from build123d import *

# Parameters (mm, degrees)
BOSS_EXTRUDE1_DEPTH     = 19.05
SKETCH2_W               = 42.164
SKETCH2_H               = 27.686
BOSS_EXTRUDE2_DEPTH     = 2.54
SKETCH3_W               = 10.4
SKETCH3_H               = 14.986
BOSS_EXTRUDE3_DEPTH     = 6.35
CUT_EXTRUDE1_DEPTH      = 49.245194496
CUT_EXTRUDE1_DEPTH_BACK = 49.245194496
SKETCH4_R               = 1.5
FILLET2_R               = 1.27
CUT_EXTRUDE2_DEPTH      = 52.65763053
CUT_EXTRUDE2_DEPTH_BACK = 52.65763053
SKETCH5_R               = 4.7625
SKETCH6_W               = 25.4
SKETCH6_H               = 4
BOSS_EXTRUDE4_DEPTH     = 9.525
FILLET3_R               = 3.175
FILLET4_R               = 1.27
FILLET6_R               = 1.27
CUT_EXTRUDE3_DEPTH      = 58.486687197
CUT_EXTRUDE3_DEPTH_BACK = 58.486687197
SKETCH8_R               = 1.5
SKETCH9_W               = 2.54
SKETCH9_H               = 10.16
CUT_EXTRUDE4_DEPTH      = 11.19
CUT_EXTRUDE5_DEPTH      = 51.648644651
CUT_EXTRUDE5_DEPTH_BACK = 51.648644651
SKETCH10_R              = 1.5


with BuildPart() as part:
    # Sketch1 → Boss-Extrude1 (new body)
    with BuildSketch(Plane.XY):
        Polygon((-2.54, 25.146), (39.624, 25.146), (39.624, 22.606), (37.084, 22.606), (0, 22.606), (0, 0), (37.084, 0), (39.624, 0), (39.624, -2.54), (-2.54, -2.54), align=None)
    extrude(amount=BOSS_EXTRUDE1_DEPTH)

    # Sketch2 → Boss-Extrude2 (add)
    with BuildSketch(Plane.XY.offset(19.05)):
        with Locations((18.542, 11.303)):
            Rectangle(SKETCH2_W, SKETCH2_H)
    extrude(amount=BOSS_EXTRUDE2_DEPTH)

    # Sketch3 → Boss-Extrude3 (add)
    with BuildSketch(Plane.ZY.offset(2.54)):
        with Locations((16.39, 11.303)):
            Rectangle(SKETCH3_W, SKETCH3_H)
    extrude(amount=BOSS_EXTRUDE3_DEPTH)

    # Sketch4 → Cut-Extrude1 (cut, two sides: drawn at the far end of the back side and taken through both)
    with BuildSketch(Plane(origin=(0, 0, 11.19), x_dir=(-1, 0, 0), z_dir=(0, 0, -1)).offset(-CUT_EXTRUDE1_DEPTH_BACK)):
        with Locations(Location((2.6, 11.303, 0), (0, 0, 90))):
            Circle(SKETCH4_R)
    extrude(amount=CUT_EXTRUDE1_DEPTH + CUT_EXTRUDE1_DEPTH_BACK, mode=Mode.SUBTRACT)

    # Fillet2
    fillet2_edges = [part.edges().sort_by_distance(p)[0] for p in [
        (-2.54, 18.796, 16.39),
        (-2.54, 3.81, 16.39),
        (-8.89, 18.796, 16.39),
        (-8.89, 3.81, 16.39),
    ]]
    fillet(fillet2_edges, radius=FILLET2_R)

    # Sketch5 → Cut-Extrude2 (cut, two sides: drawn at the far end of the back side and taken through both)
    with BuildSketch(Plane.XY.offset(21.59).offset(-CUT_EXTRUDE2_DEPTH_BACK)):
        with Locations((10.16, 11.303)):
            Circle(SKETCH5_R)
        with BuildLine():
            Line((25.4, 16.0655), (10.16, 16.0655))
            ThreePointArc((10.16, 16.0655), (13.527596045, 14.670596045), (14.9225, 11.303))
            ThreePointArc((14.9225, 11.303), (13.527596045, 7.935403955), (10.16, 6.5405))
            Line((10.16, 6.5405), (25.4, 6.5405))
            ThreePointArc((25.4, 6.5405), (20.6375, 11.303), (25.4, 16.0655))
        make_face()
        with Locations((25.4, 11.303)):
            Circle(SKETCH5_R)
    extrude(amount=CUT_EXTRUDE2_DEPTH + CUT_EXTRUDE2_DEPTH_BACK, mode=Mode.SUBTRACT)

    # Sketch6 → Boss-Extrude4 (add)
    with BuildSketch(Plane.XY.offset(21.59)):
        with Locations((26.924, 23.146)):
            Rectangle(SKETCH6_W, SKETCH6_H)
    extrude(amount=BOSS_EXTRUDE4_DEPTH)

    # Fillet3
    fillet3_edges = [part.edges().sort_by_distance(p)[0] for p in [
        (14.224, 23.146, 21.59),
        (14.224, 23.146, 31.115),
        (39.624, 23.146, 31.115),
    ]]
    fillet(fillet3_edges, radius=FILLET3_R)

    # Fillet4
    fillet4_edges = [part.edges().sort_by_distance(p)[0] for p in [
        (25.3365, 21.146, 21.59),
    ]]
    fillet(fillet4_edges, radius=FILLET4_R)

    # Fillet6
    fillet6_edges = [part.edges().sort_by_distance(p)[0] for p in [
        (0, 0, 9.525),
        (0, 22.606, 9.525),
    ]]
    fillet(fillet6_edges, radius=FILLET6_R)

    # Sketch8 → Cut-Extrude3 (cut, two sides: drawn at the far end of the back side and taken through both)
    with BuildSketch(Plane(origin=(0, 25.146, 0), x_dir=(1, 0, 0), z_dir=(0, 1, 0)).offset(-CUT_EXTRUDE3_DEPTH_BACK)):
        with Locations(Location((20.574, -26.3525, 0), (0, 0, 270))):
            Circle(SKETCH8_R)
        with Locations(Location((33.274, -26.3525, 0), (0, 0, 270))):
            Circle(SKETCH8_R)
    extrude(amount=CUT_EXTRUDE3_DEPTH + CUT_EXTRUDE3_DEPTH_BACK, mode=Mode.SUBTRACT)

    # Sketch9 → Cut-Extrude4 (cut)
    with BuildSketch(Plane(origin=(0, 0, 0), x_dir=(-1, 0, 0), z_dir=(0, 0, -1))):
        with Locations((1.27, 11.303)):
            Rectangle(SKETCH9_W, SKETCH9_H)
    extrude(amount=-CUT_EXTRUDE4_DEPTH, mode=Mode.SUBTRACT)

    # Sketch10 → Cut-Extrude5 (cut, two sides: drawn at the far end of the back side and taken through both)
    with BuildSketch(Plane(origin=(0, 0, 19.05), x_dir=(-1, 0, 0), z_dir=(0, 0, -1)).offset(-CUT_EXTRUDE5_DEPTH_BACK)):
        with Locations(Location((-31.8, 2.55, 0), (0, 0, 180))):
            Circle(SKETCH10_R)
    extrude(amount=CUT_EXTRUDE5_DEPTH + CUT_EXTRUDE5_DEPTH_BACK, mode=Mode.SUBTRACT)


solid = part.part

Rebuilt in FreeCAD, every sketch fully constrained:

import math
import FreeCAD as App
import Part
import Sketcher
Q = App.Units.Quantity


def edges_at(feature, points):
    """Names of the edges that pass closest to the given points."""
    edges = feature.Shape.Edges
    near = lambda p: min(range(len(edges)), key=lambda i: edges[i].distToShape(Part.Vertex(*p))[0])
    return sorted({f"Edge{near(p) + 1}" for p in points})

doc = App.newDocument("Part")
params = doc.addObject("Spreadsheet::Sheet", "Params")
for row, (alias, value) in enumerate([
    ("sketch1_height", "0.1 in"),
    ("sketch1_width", "1.66 in"),
    ("sketch1_width2", "1.56 in"),
    ("sketch1_height2", "1.09 in"),
    ("pad1_length", "0.75 in"),
    ("sketch2_width", "1.66 in"),
    ("sketch2_height", "1.09 in"),
    ("pad2_length", "0.1 in"),
    ("sketch3_width", "0.59 in"),
    ("pad3_length", "0.25 in"),
    ("fillet_radius", "0.05 in"),
    ("sketch5_width", "0.6 in"),
    ("sketch5_radius", "0.1875 in"),
    ("sketch6_width", "1 in"),
    ("pad4_length", "0.375 in"),
    ("fillet2_radius", "0.125 in"),
    ("fillet3_radius", "0.05 in"),
    ("fillet4_radius", "0.05 in"),
    ("sketch8_width", "0.1 in"),
    ("sketch8_height", "0.4 in"),
    ("pocket4_length", "11.19 mm"),
], start=1):
    params.set(f"A{row}", alias)
    params.set(f"B{row}", "=" + value)
    params.setAlias(f"B{row}", alias)

body = doc.addObject("PartDesign::Body", "Body")

# Sketch on XY plane
sketch1 = body.newObject("Sketcher::SketchObject", "Sketch")
sketch1.AttachmentSupport = (doc.getObject("XY_Plane"), [""])
sketch1.MapMode = "FlatFace"
sketch1.addGeometry([
    Part.LineSegment(App.Vector(39.6, 25.1, 0), App.Vector(-2.5, 25.1, 0)),  # 0
    Part.LineSegment(App.Vector(-2.5, 25.1, 0), App.Vector(-2.5, -2.5, 0)),  # 1
    Part.LineSegment(App.Vector(-2.5, -2.5, 0), App.Vector(39.6, -2.5, 0)),  # 2
    Part.LineSegment(App.Vector(39.6, -2.5, 0), App.Vector(39.6, 0, 0)),  # 3
    Part.LineSegment(App.Vector(39.6, 0, 0), App.Vector(0, 0, 0)),  # 4
    Part.LineSegment(App.Vector(0, 0, 0), App.Vector(0, 22.6, 0)),  # 5
    Part.LineSegment(App.Vector(0, 22.6, 0), App.Vector(39.6, 22.6, 0)),  # 6
    Part.LineSegment(App.Vector(39.6, 22.6, 0), App.Vector(39.6, 25.1, 0)),  # 7
], False)
sketch1.addConstraint([
    Sketcher.Constraint("Coincident", 0, 2, 1, 1),
    Sketcher.Constraint("Coincident", 1, 2, 2, 1),
    Sketcher.Constraint("Coincident", 2, 2, 3, 1),
    Sketcher.Constraint("Coincident", 3, 2, 4, 1),
    Sketcher.Constraint("Coincident", 4, 2, 5, 1),
    Sketcher.Constraint("Coincident", 5, 2, 6, 1),
    Sketcher.Constraint("Coincident", 6, 2, 7, 1),
    Sketcher.Constraint("Coincident", 7, 2, 0, 1),
    Sketcher.Constraint("Horizontal", 0),
    Sketcher.Constraint("Vertical", 1),
    Sketcher.Constraint("Horizontal", 2),
    Sketcher.Constraint("Vertical", 3),
    Sketcher.Constraint("Horizontal", 4),
    Sketcher.Constraint("Vertical", 5),
    Sketcher.Constraint("Horizontal", 6),
    Sketcher.Constraint("Vertical", 7),
    Sketcher.Constraint("Coincident", 4, 2, -1, 1),
    Sketcher.Constraint("Vertical", 3, 2, 6, 2),
    Sketcher.Constraint("Equal", 3, 7),
    Sketcher.Constraint("DistanceY", 3, 1, 3, 2, Q("0.1 in")),
    Sketcher.Constraint("DistanceX", 0, 2, 0, 1, Q("1.66 in")),
    Sketcher.Constraint("DistanceX", 4, 2, 4, 1, Q("1.56 in")),
    Sketcher.Constraint("DistanceY", 1, 2, 1, 1, Q("1.09 in")),
])
sketch1.setExpression("Constraints[19]", "Params.sketch1_height")
sketch1.setExpression("Constraints[20]", "Params.sketch1_width")
sketch1.setExpression("Constraints[21]", "Params.sketch1_width2")
sketch1.setExpression("Constraints[22]", "Params.sketch1_height2")
pad1 = body.newObject("PartDesign::Pad", "Pad")
pad1.Profile = sketch1
pad1.setExpression("Length", "Params.pad1_length")

# Sketch on XY plane
sketch2 = body.newObject("Sketcher::SketchObject", "Sketch001")
sketch2.AttachmentSupport = (doc.getObject("XY_Plane"), [""])
sketch2.MapMode = "FlatFace"
sketch2.AttachmentOffset = App.Placement(App.Vector(0, 0, 0.75 * 25.4), App.Rotation())
sketch2.addGeometry([
    Part.LineSegment(App.Vector(-3, 25, 0), App.Vector(-3, -3, 0)),
    Part.LineSegment(App.Vector(-3, -3, 0), App.Vector(40, -3, 0)),
    Part.LineSegment(App.Vector(40, -3, 0), App.Vector(40, 25, 0)),
    Part.LineSegment(App.Vector(40, 25, 0), App.Vector(-3, 25, 0)),
], False)
sketch2.addConstraint([
    Sketcher.Constraint("Coincident", 0, 2, 1, 1),
    Sketcher.Constraint("Coincident", 1, 2, 2, 1),
    Sketcher.Constraint("Coincident", 2, 2, 3, 1),
    Sketcher.Constraint("Coincident", 3, 2, 0, 1),
    Sketcher.Constraint("Vertical", 0),
    Sketcher.Constraint("Horizontal", 1),
    Sketcher.Constraint("Vertical", 2),
    Sketcher.Constraint("Horizontal", 3),
    Sketcher.Constraint("DistanceX", 1, 1, 1, 2, Q("1.66 in")),
    Sketcher.Constraint("DistanceY", 0, 2, 0, 1, Q("1.09 in")),
    Sketcher.Constraint("DistanceX", 0, 2, -1, 1, Q("0.1 in")),
    Sketcher.Constraint("DistanceY", 0, 2, -1, 1, Q("0.1 in")),
])
sketch2.setExpression("Constraints[8]", "Params.sketch2_width")
sketch2.setExpression("Constraints[9]", "Params.sketch2_height")
pad2 = body.newObject("PartDesign::Pad", "Pad001")
pad2.Profile = sketch2
pad2.setExpression("Length", "Params.pad2_length")

# Sketch on YZ plane
sketch3 = body.newObject("Sketcher::SketchObject", "Sketch002")
sketch3.AttachmentSupport = (doc.getObject("YZ_Plane"), [""])
sketch3.MapMode = "FlatFace"
sketch3.AttachmentOffset = App.Placement(App.Vector(0, 0, -0.1 * 25.4), App.Rotation())
sketch3.addGeometry([
    Part.LineSegment(App.Vector(19, 11, 0), App.Vector(4, 11, 0)),
    Part.LineSegment(App.Vector(4, 11, 0), App.Vector(4, 22, 0)),
    Part.LineSegment(App.Vector(4, 22, 0), App.Vector(19, 22, 0)),
    Part.LineSegment(App.Vector(19, 22, 0), App.Vector(19, 11, 0)),
], False)
sketch3.addConstraint([
    Sketcher.Constraint("Coincident", 0, 2, 1, 1),
    Sketcher.Constraint("Coincident", 1, 2, 2, 1),
    Sketcher.Constraint("Coincident", 2, 2, 3, 1),
    Sketcher.Constraint("Coincident", 3, 2, 0, 1),
    Sketcher.Constraint("Horizontal", 0),
    Sketcher.Constraint("Vertical", 1),
    Sketcher.Constraint("Horizontal", 2),
    Sketcher.Constraint("Vertical", 3),
    Sketcher.Constraint("DistanceX", 0, 2, 0, 1, Q("0.59 in")),
    Sketcher.Constraint("DistanceX", -1, 1, 0, 2, Q("0.15 in")),
    Sketcher.Constraint("DistanceY", -1, 1, 1, 2, Q("0.85 in")),
    Sketcher.Constraint("DistanceY", 1, 1, 1, 2, Q("10.4 mm")),
])
sketch3.setExpression("Constraints[8]", "Params.sketch3_width")
pad3 = body.newObject("PartDesign::Pad", "Pad002")
pad3.Profile = sketch3
pad3.setExpression("Length", "Params.pad3_length")
pad3.Reversed = True

# Sketch on XY plane
sketch4 = body.newObject("Sketcher::SketchObject", "Sketch003")
sketch4.AttachmentSupport = (doc.getObject("XY_Plane"), [""])
sketch4.MapMode = "FlatFace"
sketch4.AttachmentOffset = App.Placement(App.Vector(0, 0, 11.19), App.Rotation())
sketch4.addGeometry(Part.Circle(App.Vector(-2.6, 11.3, 0), App.Vector(0, 0, 1), 1.5), False)
sketch4.addConstraint([
    Sketcher.Constraint("Diameter", 0, Q("3 mm")),
    Sketcher.Constraint("DistanceY", -1, 1, 0, 3, Q("0.445 in")),
    Sketcher.Constraint("DistanceX", 0, 3, -1, 1, Q("2.6 mm")),
])
pocket1 = body.newObject("PartDesign::Pocket", "Pocket")
pocket1.Profile = sketch4
pocket1.Type = "ThroughAll"
pocket1.Midplane = True
doc.recompute()

fillet = body.newObject("PartDesign::Fillet", "Fillet")
fillet.Base = (pocket1, edges_at(pocket1, [
    (-2.54, 18.796, 16.39),
    (-2.54, 3.81, 16.39),
    (-8.89, 18.796, 16.39),
    (-8.89, 3.81, 16.39),
]))
fillet.setExpression("Radius", "Params.fillet_radius")

# Sketch on XY plane
sketch5 = body.newObject("Sketcher::SketchObject", "Sketch004")
sketch5.AttachmentSupport = (doc.getObject("XY_Plane"), [""])
sketch5.MapMode = "FlatFace"
sketch5.AttachmentOffset = App.Placement(App.Vector(0, 0, 0.85 * 25.4), App.Rotation())
sketch5.addGeometry([
    Part.ArcOfCircle(Part.Circle(App.Vector(10.2, 11.3, 0), App.Vector(0, 0, 1), 4.8), math.radians(90), math.radians(270)),
    Part.LineSegment(App.Vector(10.2, 6.5, 0), App.Vector(25.4, 6.5, 0)),
    Part.ArcOfCircle(Part.Circle(App.Vector(25.4, 11.3, 0), App.Vector(0, 0, 1), 4.8), math.radians(-90), math.radians(90)),
    Part.LineSegment(App.Vector(25.4, 16.1, 0), App.Vector(10.2, 16.1, 0)),
], False)
sketch5.addConstraint([
    Sketcher.Constraint("Tangent", 0, 2, 1, 1),
    Sketcher.Constraint("Tangent", 1, 2, 2, 1),
    Sketcher.Constraint("Tangent", 2, 2, 3, 1),
    Sketcher.Constraint("Tangent", 3, 2, 0, 1),
    Sketcher.Constraint("Horizontal", 1),
    Sketcher.Constraint("Horizontal", 3),
    Sketcher.Constraint("DistanceX", 1, 1, 1, 2, Q("0.6 in")),
    Sketcher.Constraint("DistanceX", -1, 1, 2, 3, Q("1 in")),
    Sketcher.Constraint("Radius", 0, Q("0.1875 in")),
    Sketcher.Constraint("DistanceY", -1, 1, 0, 3, Q("0.445 in")),
])
sketch5.setExpression("Constraints[6]", "Params.sketch5_width")
sketch5.setExpression("Constraints[8]", "Params.sketch5_radius")
pocket2 = body.newObject("PartDesign::Pocket", "Pocket001")
pocket2.Profile = sketch5
pocket2.Type = "ThroughAll"
pocket2.Midplane = True

# Sketch on XY plane
sketch6 = body.newObject("Sketcher::SketchObject", "Sketch005")
sketch6.AttachmentSupport = (doc.getObject("XY_Plane"), [""])
sketch6.MapMode = "FlatFace"
sketch6.AttachmentOffset = App.Placement(App.Vector(0, 0, 0.85 * 25.4), App.Rotation())
sketch6.addGeometry([
    Part.LineSegment(App.Vector(14.2, 25.1, 0), App.Vector(14.2, 21.1, 0)),
    Part.LineSegment(App.Vector(14.2, 21.1, 0), App.Vector(39.6, 21.1, 0)),
    Part.LineSegment(App.Vector(39.6, 21.1, 0), App.Vector(39.6, 25.1, 0)),
    Part.LineSegment(App.Vector(39.6, 25.1, 0), App.Vector(14.2, 25.1, 0)),
], False)
sketch6.addConstraint([
    Sketcher.Constraint("Coincident", 0, 2, 1, 1),
    Sketcher.Constraint("Coincident", 1, 2, 2, 1),
    Sketcher.Constraint("Coincident", 2, 2, 3, 1),
    Sketcher.Constraint("Coincident", 3, 2, 0, 1),
    Sketcher.Constraint("Vertical", 0),
    Sketcher.Constraint("Horizontal", 1),
    Sketcher.Constraint("Vertical", 2),
    Sketcher.Constraint("Horizontal", 3),
    Sketcher.Constraint("DistanceX", 1, 1, 1, 2, Q("1 in")),
    Sketcher.Constraint("DistanceX", -1, 1, 0, 2, Q("0.56 in")),
    Sketcher.Constraint("DistanceY", -1, 1, 2, 2, Q("0.99 in")),
    Sketcher.Constraint("DistanceY", 0, 2, 0, 1, Q("4 mm")),
])
sketch6.setExpression("Constraints[8]", "Params.sketch6_width")
pad4 = body.newObject("PartDesign::Pad", "Pad003")
pad4.Profile = sketch6
pad4.setExpression("Length", "Params.pad4_length")
doc.recompute()

fillet2 = body.newObject("PartDesign::Fillet", "Fillet001")
fillet2.Base = (pad4, edges_at(pad4, [(14.224, 23.146, 21.59), (14.224, 23.146, 31.115), (39.624, 23.146, 31.115)]))
fillet2.setExpression("Radius", "Params.fillet2_radius")
doc.recompute()

fillet3 = body.newObject("PartDesign::Fillet", "Fillet002")
fillet3.Base = (fillet2, edges_at(fillet2, [(25.337, 21.146, 21.59)]))
fillet3.setExpression("Radius", "Params.fillet3_radius")
doc.recompute()

fillet4 = body.newObject("PartDesign::Fillet", "Fillet003")
fillet4.Base = (fillet3, edges_at(fillet3, [(0, 0, 9.525), (0, 22.606, 9.525)]))
fillet4.setExpression("Radius", "Params.fillet4_radius")

# Sketch on XZ plane
sketch7 = body.newObject("Sketcher::SketchObject", "Sketch006")
sketch7.AttachmentSupport = (doc.getObject("XZ_Plane"), [""])
sketch7.MapMode = "FlatFace"
sketch7.AttachmentOffset = App.Placement(App.Vector(0, 0, -0.99 * 25.4), App.Rotation())
sketch7.addGeometry([
    Part.Circle(App.Vector(20.6, 26.4, 0), App.Vector(0, 0, 1), 1.5),
    Part.Circle(App.Vector(33.3, 26.4, 0), App.Vector(0, 0, 1), 1.5),
], False)
sketch7.addConstraint([
    Sketcher.Constraint("Equal", 0, 1),
    Sketcher.Constraint("Horizontal", 0, 3, 1, 3),
    Sketcher.Constraint("DistanceX", 0, 3, 1, 3, Q("0.5 in")),
    Sketcher.Constraint("Diameter", 0, Q("3 mm")),
    Sketcher.Constraint("DistanceX", -1, 1, 0, 3, Q("0.81 in")),
    Sketcher.Constraint("DistanceY", -1, 1, 0, 3, Q("1.0375 in")),
])
pocket3 = body.newObject("PartDesign::Pocket", "Pocket002")
pocket3.Profile = sketch7
pocket3.Type = "ThroughAll"
pocket3.Midplane = True

# Sketch on XY plane
sketch8 = body.newObject("Sketcher::SketchObject", "Sketch007")
sketch8.AttachmentSupport = (doc.getObject("XY_Plane"), [""])
sketch8.MapMode = "FlatFace"
sketch8.addGeometry([
    Part.LineSegment(App.Vector(0, 16.4, 0), App.Vector(0, 6.2, 0)),
    Part.LineSegment(App.Vector(0, 6.2, 0), App.Vector(-2.5, 6.2, 0)),
    Part.LineSegment(App.Vector(-2.5, 6.2, 0), App.Vector(-2.5, 16.4, 0)),
    Part.LineSegment(App.Vector(-2.5, 16.4, 0), App.Vector(0, 16.4, 0)),
], False)
sketch8.addConstraint([
    Sketcher.Constraint("Coincident", 0, 2, 1, 1),
    Sketcher.Constraint("Coincident", 1, 2, 2, 1),
    Sketcher.Constraint("Coincident", 2, 2, 3, 1),
    Sketcher.Constraint("Coincident", 3, 2, 0, 1),
    Sketcher.Constraint("Vertical", 0),
    Sketcher.Constraint("Horizontal", 1),
    Sketcher.Constraint("Vertical", 2),
    Sketcher.Constraint("Horizontal", 3),
    Sketcher.Constraint("PointOnObject", 0, 2, -2),
    Sketcher.Constraint("DistanceX", 1, 2, 1, 1, Q("0.1 in")),
    Sketcher.Constraint("DistanceY", 0, 2, 0, 1, Q("0.4 in")),
    Sketcher.Constraint("DistanceY", -1, 1, 0, 2, Q("0.245 in")),
])
sketch8.setExpression("Constraints[9]", "Params.sketch8_width")
sketch8.setExpression("Constraints[10]", "Params.sketch8_height")
pocket4 = body.newObject("PartDesign::Pocket", "Pocket003")
pocket4.Profile = sketch8
pocket4.setExpression("Length", "Params.pocket4_length")
pocket4.Reversed = True

# Sketch on XY plane
sketch9 = body.newObject("Sketcher::SketchObject", "Sketch008")
sketch9.AttachmentSupport = (doc.getObject("XY_Plane"), [""])
sketch9.MapMode = "FlatFace"
sketch9.AttachmentOffset = App.Placement(App.Vector(0, 0, 0.75 * 25.4), App.Rotation())
sketch9.addGeometry(Part.Circle(App.Vector(31.8, 2.5, 0), App.Vector(0, 0, 1), 1.5), False)
sketch9.addConstraint([
    Sketcher.Constraint("Diameter", 0, Q("3 mm")),
    Sketcher.Constraint("DistanceX", -1, 1, 0, 3, Q("31.8 mm")),
    Sketcher.Constraint("DistanceY", -1, 1, 0, 3, Q("2.55 mm")),
])
pocket5 = body.newObject("PartDesign::Pocket", "Pocket004")
pocket5.Profile = sketch9
pocket5.Type = "ThroughAll"
pocket5.Midplane = True

doc.recompute()
